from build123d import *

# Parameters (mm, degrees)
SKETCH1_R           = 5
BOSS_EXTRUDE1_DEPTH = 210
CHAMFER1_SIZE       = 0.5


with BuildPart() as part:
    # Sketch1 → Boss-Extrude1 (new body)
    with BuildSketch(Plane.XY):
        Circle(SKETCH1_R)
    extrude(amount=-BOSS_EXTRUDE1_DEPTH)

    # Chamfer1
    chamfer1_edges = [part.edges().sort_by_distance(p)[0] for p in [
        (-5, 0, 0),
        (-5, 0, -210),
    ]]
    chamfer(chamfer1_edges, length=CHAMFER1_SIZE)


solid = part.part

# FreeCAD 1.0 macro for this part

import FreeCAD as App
import Part
import Sketcher

V = App.Vector


def edges_at(feature, points):
    """Names of the edges that pass closest to the given points."""
    edges = feature.Shape.Edges
    near = lambda p: min(range(len(edges)), key=lambda i: edges[i].distToShape(Part.Vertex(*p))[0])
    return sorted({f"Edge{near(p) + 1}" for p in points})

doc = App.newDocument("Part")
body = doc.addObject("PartDesign::Body", "Body")

sketch1 = body.newObject("Sketcher::SketchObject", "Sketch")
sketch1.AttachmentSupport = (doc.getObject("XY_Plane"), [""])
sketch1.MapMode = "FlatFace"
sketch1.addGeometry(Part.Circle(V(0, 0, 0), V(0, 0, 1), 5), False)
sketch1.addConstraint([
    Sketcher.Constraint("Coincident", 0, 3, -1, 1),
    Sketcher.Constraint("Diameter", 0, 10.0),
])
pad1 = body.newObject("PartDesign::Pad", "Pad")
pad1.Profile = sketch1
pad1.Length = 210
pad1.Reversed = True
doc.recompute()

chamfer = body.newObject("PartDesign::Chamfer", "Chamfer")
chamfer.Base = (pad1, edges_at(pad1, [(-5, 0, 0), (-5, 0, -210)]))
chamfer.Size = 0.5

doc.recompute()
